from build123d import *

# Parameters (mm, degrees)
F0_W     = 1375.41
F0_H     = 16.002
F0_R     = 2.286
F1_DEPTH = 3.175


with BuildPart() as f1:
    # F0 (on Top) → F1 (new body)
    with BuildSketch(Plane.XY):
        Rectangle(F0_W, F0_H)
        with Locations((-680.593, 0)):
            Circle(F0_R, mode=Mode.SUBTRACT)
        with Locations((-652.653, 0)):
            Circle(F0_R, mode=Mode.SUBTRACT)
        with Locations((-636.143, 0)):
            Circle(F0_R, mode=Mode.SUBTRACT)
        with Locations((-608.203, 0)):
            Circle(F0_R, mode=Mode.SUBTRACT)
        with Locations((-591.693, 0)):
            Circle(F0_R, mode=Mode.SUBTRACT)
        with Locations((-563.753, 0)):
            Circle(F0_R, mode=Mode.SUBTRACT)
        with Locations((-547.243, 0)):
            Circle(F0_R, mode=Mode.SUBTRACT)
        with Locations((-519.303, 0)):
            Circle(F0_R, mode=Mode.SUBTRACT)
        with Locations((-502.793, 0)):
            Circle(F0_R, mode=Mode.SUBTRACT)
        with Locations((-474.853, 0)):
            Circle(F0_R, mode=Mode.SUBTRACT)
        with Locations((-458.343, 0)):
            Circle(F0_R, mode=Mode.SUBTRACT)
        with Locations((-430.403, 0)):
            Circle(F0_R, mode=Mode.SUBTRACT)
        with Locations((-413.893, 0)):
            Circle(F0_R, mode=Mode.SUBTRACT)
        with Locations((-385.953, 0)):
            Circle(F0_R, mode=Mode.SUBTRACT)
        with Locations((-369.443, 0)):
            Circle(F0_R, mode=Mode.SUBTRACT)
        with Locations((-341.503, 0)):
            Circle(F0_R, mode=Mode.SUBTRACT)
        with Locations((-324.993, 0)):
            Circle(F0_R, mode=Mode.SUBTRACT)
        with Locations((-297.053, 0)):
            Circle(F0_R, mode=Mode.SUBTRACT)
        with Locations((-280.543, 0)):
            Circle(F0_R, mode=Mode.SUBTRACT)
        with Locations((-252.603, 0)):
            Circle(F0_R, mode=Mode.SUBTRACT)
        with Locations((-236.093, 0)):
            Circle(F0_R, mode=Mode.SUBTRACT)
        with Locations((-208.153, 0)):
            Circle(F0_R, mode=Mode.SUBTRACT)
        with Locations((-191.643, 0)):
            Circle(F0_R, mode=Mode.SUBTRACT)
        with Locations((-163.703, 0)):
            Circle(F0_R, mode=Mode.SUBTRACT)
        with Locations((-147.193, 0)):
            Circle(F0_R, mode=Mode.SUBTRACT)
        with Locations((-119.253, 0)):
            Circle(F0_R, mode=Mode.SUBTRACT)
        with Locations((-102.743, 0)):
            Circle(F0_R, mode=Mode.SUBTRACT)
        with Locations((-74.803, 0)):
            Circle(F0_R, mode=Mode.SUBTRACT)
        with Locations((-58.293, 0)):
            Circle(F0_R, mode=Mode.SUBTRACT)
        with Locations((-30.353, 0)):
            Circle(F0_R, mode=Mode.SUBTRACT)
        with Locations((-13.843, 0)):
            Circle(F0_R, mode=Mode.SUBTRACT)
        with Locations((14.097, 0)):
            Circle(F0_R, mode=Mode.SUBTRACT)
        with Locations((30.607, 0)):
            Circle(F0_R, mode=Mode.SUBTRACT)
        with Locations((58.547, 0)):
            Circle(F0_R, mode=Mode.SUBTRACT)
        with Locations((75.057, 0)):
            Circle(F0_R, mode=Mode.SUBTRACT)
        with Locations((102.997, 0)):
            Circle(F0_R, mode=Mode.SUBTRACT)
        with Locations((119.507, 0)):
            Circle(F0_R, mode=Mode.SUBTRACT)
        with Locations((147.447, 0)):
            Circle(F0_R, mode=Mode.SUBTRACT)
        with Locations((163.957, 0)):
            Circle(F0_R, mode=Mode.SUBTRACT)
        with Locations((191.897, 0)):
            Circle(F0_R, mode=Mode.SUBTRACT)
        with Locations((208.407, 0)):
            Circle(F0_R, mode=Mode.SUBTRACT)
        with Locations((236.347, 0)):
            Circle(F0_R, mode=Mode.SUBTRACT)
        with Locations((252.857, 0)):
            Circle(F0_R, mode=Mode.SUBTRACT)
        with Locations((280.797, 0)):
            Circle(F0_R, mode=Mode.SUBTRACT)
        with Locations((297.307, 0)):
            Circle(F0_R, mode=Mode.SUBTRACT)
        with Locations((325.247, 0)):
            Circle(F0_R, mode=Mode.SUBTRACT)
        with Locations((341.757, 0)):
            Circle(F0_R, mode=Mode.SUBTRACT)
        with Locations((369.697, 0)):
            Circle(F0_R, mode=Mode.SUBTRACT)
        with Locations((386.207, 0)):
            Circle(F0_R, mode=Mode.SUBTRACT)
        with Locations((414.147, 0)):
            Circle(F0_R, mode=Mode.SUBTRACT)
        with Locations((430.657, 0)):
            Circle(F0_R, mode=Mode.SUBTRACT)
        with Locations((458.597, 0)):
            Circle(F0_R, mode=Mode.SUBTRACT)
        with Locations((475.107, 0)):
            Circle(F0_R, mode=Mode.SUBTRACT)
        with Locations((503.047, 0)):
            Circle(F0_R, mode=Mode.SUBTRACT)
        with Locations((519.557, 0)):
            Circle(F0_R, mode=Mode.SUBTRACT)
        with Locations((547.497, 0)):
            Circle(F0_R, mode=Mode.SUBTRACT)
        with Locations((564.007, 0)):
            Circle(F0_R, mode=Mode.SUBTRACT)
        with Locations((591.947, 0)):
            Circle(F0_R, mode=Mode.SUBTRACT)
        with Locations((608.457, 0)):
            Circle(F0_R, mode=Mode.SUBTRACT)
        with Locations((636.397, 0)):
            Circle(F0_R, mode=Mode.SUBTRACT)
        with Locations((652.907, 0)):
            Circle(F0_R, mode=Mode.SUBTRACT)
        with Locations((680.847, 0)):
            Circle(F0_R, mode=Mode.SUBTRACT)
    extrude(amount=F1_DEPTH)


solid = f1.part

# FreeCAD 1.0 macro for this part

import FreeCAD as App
import Part
import Sketcher
from FreeCAD import Vector
Q = App.Units.Quantity


def add_polygon(sketch, points):
    """Adds a closed chain of lines whose ends are joined by coincident constraints."""
    first, n = sketch.GeometryCount, len(points)
    for a, b in zip(points, points[1:] + points[:1]):
        sketch.addGeometry(Part.LineSegment(App.Vector(*a, 0), App.Vector(*b, 0)), False)
    for i in range(n):
        sketch.addConstraint(Sketcher.Constraint("Coincident", first + i, 2, first + (i + 1) % n, 1))

doc = App.newDocument("Part")
body = doc.addObject("PartDesign::Body", "Body")

sketch1 = body.newObject("Sketcher::SketchObject", "Sketch")
sketch1.AttachmentSupport = (doc.getObject("XY_Plane"), [""])
sketch1.MapMode = "FlatFace"
add_polygon(sketch1, [(-687.7, 8), (-687.7, -8), (687.7, -8), (687.7, 8)])
sketch1.addGeometry(Part.Circle(Vector(-680.6, 0, 0), Vector(0, 0, 1), 2.3), False)
sketch1.addGeometry(Part.Circle(Vector(-652.7, 0, 0), Vector(0, 0, 1), 2.3), False)
sketch1.addGeometry(Part.Circle(Vector(-636.1, 0, 0), Vector(0, 0, 1), 2.3), False)
sketch1.addGeometry(Part.Circle(Vector(-608.2, 0, 0), Vector(0, 0, 1), 2.3), False)
sketch1.addGeometry(Part.Circle(Vector(-591.7, 0, 0), Vector(0, 0, 1), 2.3), False)
sketch1.addGeometry(Part.Circle(Vector(-563.8, 0, 0), Vector(0, 0, 1), 2.3), False)
sketch1.addGeometry(Part.Circle(Vector(-547.2, 0, 0), Vector(0, 0, 1), 2.3), False)
sketch1.addGeometry(Part.Circle(Vector(-519.3, 0, 0), Vector(0, 0, 1), 2.3), False)
sketch1.addGeometry(Part.Circle(Vector(-502.8, 0, 0), Vector(0, 0, 1), 2.3), False)
sketch1.addGeometry(Part.Circle(Vector(-474.9, 0, 0), Vector(0, 0, 1), 2.3), False)
sketch1.addGeometry(Part.Circle(Vector(-458.3, 0, 0), Vector(0, 0, 1), 2.3), False)
sketch1.addGeometry(Part.Circle(Vector(-430.4, 0, 0), Vector(0, 0, 1), 2.3), False)
sketch1.addGeometry(Part.Circle(Vector(-413.9, 0, 0), Vector(0, 0, 1), 2.3), False)
sketch1.addGeometry(Part.Circle(Vector(-386, 0, 0), Vector(0, 0, 1), 2.3), False)
sketch1.addGeometry(Part.Circle(Vector(-369.4, 0, 0), Vector(0, 0, 1), 2.3), False)
sketch1.addGeometry(Part.Circle(Vector(-341.5, 0, 0), Vector(0, 0, 1), 2.3), False)
sketch1.addGeometry(Part.Circle(Vector(-325, 0, 0), Vector(0, 0, 1), 2.3), False)
sketch1.addGeometry(Part.Circle(Vector(-297.1, 0, 0), Vector(0, 0, 1), 2.3), False)
sketch1.addGeometry(Part.Circle(Vector(-280.5, 0, 0), Vector(0, 0, 1), 2.3), False)
sketch1.addGeometry(Part.Circle(Vector(-252.6, 0, 0), Vector(0, 0, 1), 2.3), False)
sketch1.addGeometry(Part.Circle(Vector(-236.1, 0, 0), Vector(0, 0, 1), 2.3), False)
sketch1.addGeometry(Part.Circle(Vector(-208.2, 0, 0), Vector(0, 0, 1), 2.3), False)
sketch1.addGeometry(Part.Circle(Vector(-191.6, 0, 0), Vector(0, 0, 1), 2.3), False)
sketch1.addGeometry(Part.Circle(Vector(-163.7, 0, 0), Vector(0, 0, 1), 2.3), False)
sketch1.addGeometry(Part.Circle(Vector(-147.2, 0, 0), Vector(0, 0, 1), 2.3), False)
sketch1.addGeometry(Part.Circle(Vector(-119.3, 0, 0), Vector(0, 0, 1), 2.3), False)
sketch1.addGeometry(Part.Circle(Vector(-102.7, 0, 0), Vector(0, 0, 1), 2.3), False)
sketch1.addGeometry(Part.Circle(Vector(-74.8, 0, 0), Vector(0, 0, 1), 2.3), False)
sketch1.addGeometry(Part.Circle(Vector(-58.3, 0, 0), Vector(0, 0, 1), 2.3), False)
sketch1.addGeometry(Part.Circle(Vector(-30.4, 0, 0), Vector(0, 0, 1), 2.3), False)
sketch1.addGeometry(Part.Circle(Vector(-13.8, 0, 0), Vector(0, 0, 1), 2.3), False)
sketch1.addGeometry(Part.Circle(Vector(14.1, 0, 0), Vector(0, 0, 1), 2.3), False)
sketch1.addGeometry(Part.Circle(Vector(30.6, 0, 0), Vector(0, 0, 1), 2.3), False)
sketch1.addGeometry(Part.Circle(Vector(58.5, 0, 0), Vector(0, 0, 1), 2.3), False)
sketch1.addGeometry(Part.Circle(Vector(75.1, 0, 0), Vector(0, 0, 1), 2.3), False)
sketch1.addGeometry(Part.Circle(Vector(103, 0, 0), Vector(0, 0, 1), 2.3), False)
sketch1.addGeometry(Part.Circle(Vector(119.5, 0, 0), Vector(0, 0, 1), 2.3), False)
sketch1.addGeometry(Part.Circle(Vector(147.4, 0, 0), Vector(0, 0, 1), 2.3), False)
sketch1.addGeometry(Part.Circle(Vector(164, 0, 0), Vector(0, 0, 1), 2.3), False)
sketch1.addGeometry(Part.Circle(Vector(191.9, 0, 0), Vector(0, 0, 1), 2.3), False)
sketch1.addGeometry(Part.Circle(Vector(208.4, 0, 0), Vector(0, 0, 1), 2.3), False)
sketch1.addGeometry(Part.Circle(Vector(236.3, 0, 0), Vector(0, 0, 1), 2.3), False)
sketch1.addGeometry(Part.Circle(Vector(252.9, 0, 0), Vector(0, 0, 1), 2.3), False)
sketch1.addGeometry(Part.Circle(Vector(280.8, 0, 0), Vector(0, 0, 1), 2.3), False)
sketch1.addGeometry(Part.Circle(Vector(297.3, 0, 0), Vector(0, 0, 1), 2.3), False)
sketch1.addGeometry(Part.Circle(Vector(325.2, 0, 0), Vector(0, 0, 1), 2.3), False)
sketch1.addGeometry(Part.Circle(Vector(341.8, 0, 0), Vector(0, 0, 1), 2.3), False)
sketch1.addGeometry(Part.Circle(Vector(369.7, 0, 0), Vector(0, 0, 1), 2.3), False)
sketch1.addGeometry(Part.Circle(Vector(386.2, 0, 0), Vector(0, 0, 1), 2.3), False)
sketch1.addGeometry(Part.Circle(Vector(414.1, 0, 0), Vector(0, 0, 1), 2.3), False)
sketch1.addGeometry(Part.Circle(Vector(430.7, 0, 0), Vector(0, 0, 1), 2.3), False)
sketch1.addGeometry(Part.Circle(Vector(458.6, 0, 0), Vector(0, 0, 1), 2.3), False)
sketch1.addGeometry(Part.Circle(Vector(475.1, 0, 0), Vector(0, 0, 1), 2.3), False)
sketch1.addGeometry(Part.Circle(Vector(503, 0, 0), Vector(0, 0, 1), 2.3), False)
sketch1.addGeometry(Part.Circle(Vector(519.6, 0, 0), Vector(0, 0, 1), 2.3), False)
sketch1.addGeometry(Part.Circle(Vector(547.5, 0, 0), Vector(0, 0, 1), 2.3), False)
sketch1.addGeometry(Part.Circle(Vector(564, 0, 0), Vector(0, 0, 1), 2.3), False)
sketch1.addGeometry(Part.Circle(Vector(591.9, 0, 0), Vector(0, 0, 1), 2.3), False)
sketch1.addGeometry(Part.Circle(Vector(608.5, 0, 0), Vector(0, 0, 1), 2.3), False)
sketch1.addGeometry(Part.Circle(Vector(636.4, 0, 0), Vector(0, 0, 1), 2.3), False)
sketch1.addGeometry(Part.Circle(Vector(652.9, 0, 0), Vector(0, 0, 1), 2.3), False)
sketch1.addGeometry(Part.Circle(Vector(680.8, 0, 0), Vector(0, 0, 1), 2.3), False)
sketch1.addConstraint(Sketcher.Constraint("Vertical", 0))
sketch1.addConstraint(Sketcher.Constraint("Horizontal", 1))
sketch1.addConstraint(Sketcher.Constraint("Vertical", 2))
sketch1.addConstraint(Sketcher.Constraint("Horizontal", 3))
sketch1.addConstraint(Sketcher.Constraint("Equal", 4, 5))
sketch1.addConstraint(Sketcher.Constraint("Equal", 5, 6))
sketch1.addConstraint(Sketcher.Constraint("Equal", 6, 7))
sketch1.addConstraint(Sketcher.Constraint("Equal", 7, 8))
sketch1.addConstraint(Sketcher.Constraint("Equal", 8, 9))
sketch1.addConstraint(Sketcher.Constraint("Equal", 9, 10))
sketch1.addConstraint(Sketcher.Constraint("Equal", 10, 11))
sketch1.addConstraint(Sketcher.Constraint("Equal", 11, 12))
sketch1.addConstraint(Sketcher.Constraint("Equal", 12, 13))
sketch1.addConstraint(Sketcher.Constraint("Equal", 13, 14))
sketch1.addConstraint(Sketcher.Constraint("Equal", 14, 15))
sketch1.addConstraint(Sketcher.Constraint("Equal", 15, 16))
sketch1.addConstraint(Sketcher.Constraint("Equal", 16, 17))
sketch1.addConstraint(Sketcher.Constraint("Equal", 17, 18))
sketch1.addConstraint(Sketcher.Constraint("Equal", 18, 19))
sketch1.addConstraint(Sketcher.Constraint("Equal", 19, 20))
sketch1.addConstraint(Sketcher.Constraint("Equal", 20, 21))
sketch1.addConstraint(Sketcher.Constraint("Equal", 21, 22))
sketch1.addConstraint(Sketcher.Constraint("Equal", 22, 23))
sketch1.addConstraint(Sketcher.Constraint("Equal", 23, 24))
sketch1.addConstraint(Sketcher.Constraint("Equal", 24, 25))
sketch1.addConstraint(Sketcher.Constraint("Equal", 25, 26))
sketch1.addConstraint(Sketcher.Constraint("Equal", 26, 27))
sketch1.addConstraint(Sketcher.Constraint("Equal", 27, 28))
sketch1.addConstraint(Sketcher.Constraint("Equal", 28, 29))
sketch1.addConstraint(Sketcher.Constraint("Equal", 29, 30))
sketch1.addConstraint(Sketcher.Constraint("Equal", 30, 31))
sketch1.addConstraint(Sketcher.Constraint("Equal", 31, 32))
sketch1.addConstraint(Sketcher.Constraint("Equal", 32, 33))
sketch1.addConstraint(Sketcher.Constraint("Equal", 33, 34))
sketch1.addConstraint(Sketcher.Constraint("Equal", 34, 35))
sketch1.addConstraint(Sketcher.Constraint("Equal", 35, 36))
sketch1.addConstraint(Sketcher.Constraint("Equal", 36, 37))
sketch1.addConstraint(Sketcher.Constraint("Equal", 37, 38))
sketch1.addConstraint(Sketcher.Constraint("Equal", 38, 39))
sketch1.addConstraint(Sketcher.Constraint("Equal", 39, 40))
sketch1.addConstraint(Sketcher.Constraint("Equal", 40, 41))
sketch1.addConstraint(Sketcher.Constraint("Equal", 41, 42))
sketch1.addConstraint(Sketcher.Constraint("Equal", 42, 43))
sketch1.addConstraint(Sketcher.Constraint("Equal", 43, 44))
sketch1.addConstraint(Sketcher.Constraint("Equal", 44, 45))
sketch1.addConstraint(Sketcher.Constraint("Equal", 45, 46))
sketch1.addConstraint(Sketcher.Constraint("Equal", 46, 47))
sketch1.addConstraint(Sketcher.Constraint("Equal", 47, 48))
sketch1.addConstraint(Sketcher.Constraint("Equal", 48, 49))
sketch1.addConstraint(Sketcher.Constraint("Equal", 49, 50))
sketch1.addConstraint(Sketcher.Constraint("Equal", 50, 51))
sketch1.addConstraint(Sketcher.Constraint("Equal", 51, 52))
sketch1.addConstraint(Sketcher.Constraint("Equal", 52, 53))
sketch1.addConstraint(Sketcher.Constraint("Equal", 53, 54))
sketch1.addConstraint(Sketcher.Constraint("Equal", 54, 55))
sketch1.addConstraint(Sketcher.Constraint("Equal", 55, 56))
sketch1.addConstraint(Sketcher.Constraint("Equal", 56, 57))
sketch1.addConstraint(Sketcher.Constraint("Equal", 57, 58))
sketch1.addConstraint(Sketcher.Constraint("Equal", 58, 59))
sketch1.addConstraint(Sketcher.Constraint("Equal", 59, 60))
sketch1.addConstraint(Sketcher.Constraint("Equal", 60, 61))
sketch1.addConstraint(Sketcher.Constraint("Equal", 61, 62))
sketch1.addConstraint(Sketcher.Constraint("Equal", 62, 63))
sketch1.addConstraint(Sketcher.Constraint("Equal", 63, 64))
sketch1.addConstraint(Sketcher.Constraint("Equal", 64, 65))
sketch1.addConstraint(Sketcher.Constraint("Symmetric", 0, 2, 2, 2, -1, 1))
sketch1.addConstraint(Sketcher.Constraint("PointOnObject", 4, 3, -1))
sketch1.addConstraint(Sketcher.Constraint("PointOnObject", 5, 3, -1))
sketch1.addConstraint(Sketcher.Constraint("PointOnObject", 6, 3, -1))
sketch1.addConstraint(Sketcher.Constraint("PointOnObject", 7, 3, -1))
sketch1.addConstraint(Sketcher.Constraint("PointOnObject", 8, 3, -1))
sketch1.addConstraint(Sketcher.Constraint("PointOnObject", 9, 3, -1))
sketch1.addConstraint(Sketcher.Constraint("PointOnObject", 10, 3, -1))
sketch1.addConstraint(Sketcher.Constraint("PointOnObject", 11, 3, -1))
sketch1.addConstraint(Sketcher.Constraint("PointOnObject", 12, 3, -1))
sketch1.addConstraint(Sketcher.Constraint("PointOnObject", 13, 3, -1))
sketch1.addConstraint(Sketcher.Constraint("PointOnObject", 14, 3, -1))
sketch1.addConstraint(Sketcher.Constraint("PointOnObject", 15, 3, -1))
sketch1.addConstraint(Sketcher.Constraint("PointOnObject", 16, 3, -1))
sketch1.addConstraint(Sketcher.Constraint("PointOnObject", 17, 3, -1))
sketch1.addConstraint(Sketcher.Constraint("PointOnObject", 18, 3, -1))
sketch1.addConstraint(Sketcher.Constraint("PointOnObject", 19, 3, -1))
sketch1.addConstraint(Sketcher.Constraint("PointOnObject", 20, 3, -1))
sketch1.addConstraint(Sketcher.Constraint("PointOnObject", 21, 3, -1))
sketch1.addConstraint(Sketcher.Constraint("PointOnObject", 22, 3, -1))
sketch1.addConstraint(Sketcher.Constraint("PointOnObject", 23, 3, -1))
sketch1.addConstraint(Sketcher.Constraint("PointOnObject", 24, 3, -1))
sketch1.addConstraint(Sketcher.Constraint("PointOnObject", 25, 3, -1))
sketch1.addConstraint(Sketcher.Constraint("PointOnObject", 26, 3, -1))
sketch1.addConstraint(Sketcher.Constraint("PointOnObject", 27, 3, -1))
sketch1.addConstraint(Sketcher.Constraint("PointOnObject", 28, 3, -1))
sketch1.addConstraint(Sketcher.Constraint("PointOnObject", 29, 3, -1))
sketch1.addConstraint(Sketcher.Constraint("PointOnObject", 30, 3, -1))
sketch1.addConstraint(Sketcher.Constraint("PointOnObject", 31, 3, -1))
sketch1.addConstraint(Sketcher.Constraint("PointOnObject", 32, 3, -1))
sketch1.addConstraint(Sketcher.Constraint("PointOnObject", 33, 3, -1))
sketch1.addConstraint(Sketcher.Constraint("PointOnObject", 34, 3, -1))
sketch1.addConstraint(Sketcher.Constraint("PointOnObject", 35, 3, -1))
sketch1.addConstraint(Sketcher.Constraint("PointOnObject", 36, 3, -1))
sketch1.addConstraint(Sketcher.Constraint("PointOnObject", 37, 3, -1))
sketch1.addConstraint(Sketcher.Constraint("PointOnObject", 38, 3, -1))
sketch1.addConstraint(Sketcher.Constraint("PointOnObject", 39, 3, -1))
sketch1.addConstraint(Sketcher.Constraint("PointOnObject", 40, 3, -1))
sketch1.addConstraint(Sketcher.Constraint("PointOnObject", 41, 3, -1))
sketch1.addConstraint(Sketcher.Constraint("PointOnObject", 42, 3, -1))
sketch1.addConstraint(Sketcher.Constraint("PointOnObject", 43, 3, -1))
sketch1.addConstraint(Sketcher.Constraint("PointOnObject", 44, 3, -1))
sketch1.addConstraint(Sketcher.Constraint("PointOnObject", 45, 3, -1))
sketch1.addConstraint(Sketcher.Constraint("PointOnObject", 46, 3, -1))
sketch1.addConstraint(Sketcher.Constraint("PointOnObject", 47, 3, -1))
sketch1.addConstraint(Sketcher.Constraint("PointOnObject", 48, 3, -1))
sketch1.addConstraint(Sketcher.Constraint("PointOnObject", 49, 3, -1))
sketch1.addConstraint(Sketcher.Constraint("PointOnObject", 50, 3, -1))
sketch1.addConstraint(Sketcher.Constraint("PointOnObject", 51, 3, -1))
sketch1.addConstraint(Sketcher.Constraint("PointOnObject", 52, 3, -1))
sketch1.addConstraint(Sketcher.Constraint("PointOnObject", 53, 3, -1))
sketch1.addConstraint(Sketcher.Constraint("PointOnObject", 54, 3, -1))
sketch1.addConstraint(Sketcher.Constraint("PointOnObject", 55, 3, -1))
sketch1.addConstraint(Sketcher.Constraint("PointOnObject", 56, 3, -1))
sketch1.addConstraint(Sketcher.Constraint("PointOnObject", 57, 3, -1))
sketch1.addConstraint(Sketcher.Constraint("PointOnObject", 58, 3, -1))
sketch1.addConstraint(Sketcher.Constraint("PointOnObject", 59, 3, -1))
sketch1.addConstraint(Sketcher.Constraint("PointOnObject", 60, 3, -1))
sketch1.addConstraint(Sketcher.Constraint("PointOnObject", 61, 3, -1))
sketch1.addConstraint(Sketcher.Constraint("PointOnObject", 62, 3, -1))
sketch1.addConstraint(Sketcher.Constraint("PointOnObject", 63, 3, -1))
sketch1.addConstraint(Sketcher.Constraint("PointOnObject", 64, 3, -1))
sketch1.addConstraint(Sketcher.Constraint("PointOnObject", 65, 3, -1))
sketch1.addConstraint(Sketcher.Constraint("Diameter", 4, Q("0.18 in")))
sketch1.addConstraint(Sketcher.Constraint("DistanceX", 1, 1, 1, 2, Q("54.15 in")))
sketch1.addConstraint(Sketcher.Constraint("DistanceY", 0, 2, 0, 1, Q("0.63 in")))
sketch1.addConstraint(Sketcher.Constraint("DistanceX", 4, 3, -1, 1, Q("26.795 in")))
sketch1.addConstraint(Sketcher.Constraint("DistanceX", 5, 3, -1, 1, Q("25.695 in")))
sketch1.addConstraint(Sketcher.Constraint("DistanceX", 6, 3, -1, 1, Q("25.045 in")))
sketch1.addConstraint(Sketcher.Constraint("DistanceX", 7, 3, -1, 1, Q("23.945 in")))
sketch1.addConstraint(Sketcher.Constraint("DistanceX", 8, 3, -1, 1, Q("23.295 in")))
sketch1.addConstraint(Sketcher.Constraint("DistanceX", 9, 3, -1, 1, Q("22.195 in")))
sketch1.addConstraint(Sketcher.Constraint("DistanceX", 10, 3, -1, 1, Q("21.545 in")))
sketch1.addConstraint(Sketcher.Constraint("DistanceX", 11, 3, -1, 1, Q("20.445 in")))
sketch1.addConstraint(Sketcher.Constraint("DistanceX", 12, 3, -1, 1, Q("19.795 in")))
sketch1.addConstraint(Sketcher.Constraint("DistanceX", 13, 3, -1, 1, Q("18.695 in")))
sketch1.addConstraint(Sketcher.Constraint("DistanceX", 14, 3, -1, 1, Q("18.045 in")))
sketch1.addConstraint(Sketcher.Constraint("DistanceX", 15, 3, -1, 1, Q("16.945 in")))
sketch1.addConstraint(Sketcher.Constraint("DistanceX", 16, 3, -1, 1, Q("16.295 in")))
sketch1.addConstraint(Sketcher.Constraint("DistanceX", 17, 3, -1, 1, Q("15.195 in")))
sketch1.addConstraint(Sketcher.Constraint("DistanceX", 18, 3, -1, 1, Q("14.545 in")))
sketch1.addConstraint(Sketcher.Constraint("DistanceX", 19, 3, -1, 1, Q("13.445 in")))
sketch1.addConstraint(Sketcher.Constraint("DistanceX", 20, 3, -1, 1, Q("12.795 in")))
sketch1.addConstraint(Sketcher.Constraint("DistanceX", 21, 3, -1, 1, Q("11.695 in")))
sketch1.addConstraint(Sketcher.Constraint("DistanceX", 22, 3, -1, 1, Q("11.045 in")))
sketch1.addConstraint(Sketcher.Constraint("DistanceX", 23, 3, -1, 1, Q("9.945 in")))
sketch1.addConstraint(Sketcher.Constraint("DistanceX", 24, 3, -1, 1, Q("9.295 in")))
sketch1.addConstraint(Sketcher.Constraint("DistanceX", 25, 3, -1, 1, Q("8.195 in")))
sketch1.addConstraint(Sketcher.Constraint("DistanceX", 26, 3, -1, 1, Q("7.545 in")))
sketch1.addConstraint(Sketcher.Constraint("DistanceX", 27, 3, -1, 1, Q("6.445 in")))
sketch1.addConstraint(Sketcher.Constraint("DistanceX", 28, 3, -1, 1, Q("5.795 in")))
sketch1.addConstraint(Sketcher.Constraint("DistanceX", 29, 3, -1, 1, Q("4.695 in")))
sketch1.addConstraint(Sketcher.Constraint("DistanceX", 30, 3, -1, 1, Q("4.045 in")))
sketch1.addConstraint(Sketcher.Constraint("DistanceX", 31, 3, -1, 1, Q("2.945 in")))
sketch1.addConstraint(Sketcher.Constraint("DistanceX", 32, 3, -1, 1, Q("2.295 in")))
sketch1.addConstraint(Sketcher.Constraint("DistanceX", 33, 3, -1, 1, Q("1.195 in")))
sketch1.addConstraint(Sketcher.Constraint("DistanceX", 34, 3, -1, 1, Q("0.545 in")))
sketch1.addConstraint(Sketcher.Constraint("DistanceX", -1, 1, 35, 3, Q("0.555 in")))
sketch1.addConstraint(Sketcher.Constraint("DistanceX", -1, 1, 36, 3, Q("1.205 in")))
sketch1.addConstraint(Sketcher.Constraint("DistanceX", -1, 1, 37, 3, Q("2.305 in")))
sketch1.addConstraint(Sketcher.Constraint("DistanceX", -1, 1, 38, 3, Q("2.955 in")))
sketch1.addConstraint(Sketcher.Constraint("DistanceX", -1, 1, 39, 3, Q("4.055 in")))
sketch1.addConstraint(Sketcher.Constraint("DistanceX", -1, 1, 40, 3, Q("4.705 in")))
sketch1.addConstraint(Sketcher.Constraint("DistanceX", -1, 1, 41, 3, Q("5.805 in")))
sketch1.addConstraint(Sketcher.Constraint("DistanceX", -1, 1, 42, 3, Q("6.455 in")))
sketch1.addConstraint(Sketcher.Constraint("DistanceX", -1, 1, 43, 3, Q("7.555 in")))
sketch1.addConstraint(Sketcher.Constraint("DistanceX", -1, 1, 44, 3, Q("8.205 in")))
sketch1.addConstraint(Sketcher.Constraint("DistanceX", -1, 1, 45, 3, Q("9.305 in")))
sketch1.addConstraint(Sketcher.Constraint("DistanceX", -1, 1, 46, 3, Q("9.955 in")))
sketch1.addConstraint(Sketcher.Constraint("DistanceX", -1, 1, 47, 3, Q("11.055 in")))
sketch1.addConstraint(Sketcher.Constraint("DistanceX", -1, 1, 48, 3, Q("11.705 in")))
sketch1.addConstraint(Sketcher.Constraint("DistanceX", -1, 1, 49, 3, Q("12.805 in")))
sketch1.addConstraint(Sketcher.Constraint("DistanceX", -1, 1, 50, 3, Q("13.455 in")))
sketch1.addConstraint(Sketcher.Constraint("DistanceX", -1, 1, 51, 3, Q("14.555 in")))
sketch1.addConstraint(Sketcher.Constraint("DistanceX", -1, 1, 52, 3, Q("15.205 in")))
sketch1.addConstraint(Sketcher.Constraint("DistanceX", -1, 1, 53, 3, Q("16.305 in")))
sketch1.addConstraint(Sketcher.Constraint("DistanceX", -1, 1, 54, 3, Q("16.955 in")))
sketch1.addConstraint(Sketcher.Constraint("DistanceX", -1, 1, 55, 3, Q("18.055 in")))
sketch1.addConstraint(Sketcher.Constraint("DistanceX", -1, 1, 56, 3, Q("18.705 in")))
sketch1.addConstraint(Sketcher.Constraint("DistanceX", -1, 1, 57, 3, Q("19.805 in")))
sketch1.addConstraint(Sketcher.Constraint("DistanceX", -1, 1, 58, 3, Q("20.455 in")))
sketch1.addConstraint(Sketcher.Constraint("DistanceX", -1, 1, 59, 3, Q("21.555 in")))
sketch1.addConstraint(Sketcher.Constraint("DistanceX", -1, 1, 60, 3, Q("22.205 in")))
sketch1.addConstraint(Sketcher.Constraint("DistanceX", -1, 1, 61, 3, Q("23.305 in")))
sketch1.addConstraint(Sketcher.Constraint("DistanceX", -1, 1, 62, 3, Q("23.955 in")))
sketch1.addConstraint(Sketcher.Constraint("DistanceX", -1, 1, 63, 3, Q("25.055 in")))
sketch1.addConstraint(Sketcher.Constraint("DistanceX", -1, 1, 64, 3, Q("25.705 in")))
sketch1.addConstraint(Sketcher.Constraint("DistanceX", -1, 1, 65, 3, Q("26.805 in")))
pad1 = body.newObject("PartDesign::Pad", "Pad")
pad1.Profile = sketch1
pad1.Length = Q("0.125 in")

doc.recompute()
